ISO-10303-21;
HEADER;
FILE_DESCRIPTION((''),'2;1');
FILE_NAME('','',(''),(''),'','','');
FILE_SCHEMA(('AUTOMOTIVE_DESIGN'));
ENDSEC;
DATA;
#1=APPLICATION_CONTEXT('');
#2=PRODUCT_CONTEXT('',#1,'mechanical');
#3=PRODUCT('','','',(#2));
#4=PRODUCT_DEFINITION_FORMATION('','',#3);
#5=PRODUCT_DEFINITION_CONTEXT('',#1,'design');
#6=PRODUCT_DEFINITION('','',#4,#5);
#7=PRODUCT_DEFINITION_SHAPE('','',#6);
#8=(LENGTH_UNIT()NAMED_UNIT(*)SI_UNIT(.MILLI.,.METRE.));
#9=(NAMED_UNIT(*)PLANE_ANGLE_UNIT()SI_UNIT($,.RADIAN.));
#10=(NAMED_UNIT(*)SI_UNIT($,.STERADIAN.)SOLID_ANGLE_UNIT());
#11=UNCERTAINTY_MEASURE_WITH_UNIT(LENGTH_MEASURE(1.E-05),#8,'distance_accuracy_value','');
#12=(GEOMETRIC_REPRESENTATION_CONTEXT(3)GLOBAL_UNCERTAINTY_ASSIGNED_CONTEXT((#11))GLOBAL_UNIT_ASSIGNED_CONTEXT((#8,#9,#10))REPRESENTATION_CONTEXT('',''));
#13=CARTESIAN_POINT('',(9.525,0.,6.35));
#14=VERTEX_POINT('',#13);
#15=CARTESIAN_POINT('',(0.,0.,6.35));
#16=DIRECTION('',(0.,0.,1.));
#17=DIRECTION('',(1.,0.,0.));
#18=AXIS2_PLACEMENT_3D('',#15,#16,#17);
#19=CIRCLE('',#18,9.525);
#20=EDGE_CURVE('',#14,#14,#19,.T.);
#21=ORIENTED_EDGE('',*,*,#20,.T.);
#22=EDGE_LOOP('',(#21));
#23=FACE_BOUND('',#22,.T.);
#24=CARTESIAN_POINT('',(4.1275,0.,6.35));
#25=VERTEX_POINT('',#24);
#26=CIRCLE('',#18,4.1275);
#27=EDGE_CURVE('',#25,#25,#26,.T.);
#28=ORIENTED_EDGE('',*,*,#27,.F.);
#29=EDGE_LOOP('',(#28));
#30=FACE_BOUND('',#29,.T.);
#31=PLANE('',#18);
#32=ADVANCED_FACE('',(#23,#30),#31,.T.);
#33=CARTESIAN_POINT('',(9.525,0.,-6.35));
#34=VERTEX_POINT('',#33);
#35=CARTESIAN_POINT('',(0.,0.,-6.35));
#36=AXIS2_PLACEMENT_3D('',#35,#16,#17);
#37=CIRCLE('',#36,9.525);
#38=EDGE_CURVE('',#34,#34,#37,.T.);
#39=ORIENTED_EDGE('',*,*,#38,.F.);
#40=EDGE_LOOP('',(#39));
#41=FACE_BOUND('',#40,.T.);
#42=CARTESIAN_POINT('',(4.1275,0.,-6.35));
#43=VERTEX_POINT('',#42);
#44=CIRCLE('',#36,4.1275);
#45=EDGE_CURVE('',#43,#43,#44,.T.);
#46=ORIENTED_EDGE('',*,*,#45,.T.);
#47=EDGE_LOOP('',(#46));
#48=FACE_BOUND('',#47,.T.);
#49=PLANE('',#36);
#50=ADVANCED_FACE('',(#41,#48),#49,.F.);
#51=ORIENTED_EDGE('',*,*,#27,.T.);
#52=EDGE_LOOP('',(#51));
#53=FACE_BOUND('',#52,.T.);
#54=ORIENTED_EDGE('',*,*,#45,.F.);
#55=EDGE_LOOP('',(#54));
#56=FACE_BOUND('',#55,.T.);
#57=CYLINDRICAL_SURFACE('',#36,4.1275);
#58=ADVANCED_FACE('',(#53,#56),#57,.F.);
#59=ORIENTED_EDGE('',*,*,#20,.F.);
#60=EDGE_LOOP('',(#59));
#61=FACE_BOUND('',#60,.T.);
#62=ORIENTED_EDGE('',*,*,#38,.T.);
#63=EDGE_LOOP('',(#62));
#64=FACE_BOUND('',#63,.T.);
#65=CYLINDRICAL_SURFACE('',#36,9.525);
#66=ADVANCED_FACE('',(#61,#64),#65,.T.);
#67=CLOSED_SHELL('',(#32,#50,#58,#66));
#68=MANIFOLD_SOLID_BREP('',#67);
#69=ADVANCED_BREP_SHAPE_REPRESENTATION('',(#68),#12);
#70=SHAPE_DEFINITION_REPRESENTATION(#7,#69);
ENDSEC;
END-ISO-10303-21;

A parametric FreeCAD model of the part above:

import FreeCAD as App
import Part
import Sketcher
Q = App.Units.Quantity

doc = App.newDocument("Part")
body = doc.addObject("PartDesign::Body", "Body")

# Sketch on XY plane
sketch1 = body.newObject("Sketcher::SketchObject", "Sketch")
sketch1.AttachmentSupport = (doc.getObject("XY_Plane"), [""])
sketch1.MapMode = "FlatFace"
sketch1.addGeometry(Part.Circle(App.Vector(0, 0, 0), App.Vector(0, 0, 1), 9.5), False)
sketch1.addGeometry(Part.Circle(App.Vector(0, 0, 0), App.Vector(0, 0, 1), 4.1), False)
sketch1.addConstraint(Sketcher.Constraint("Coincident", 0, 3, -1, 1))
sketch1.addConstraint(Sketcher.Constraint("Coincident", 1, 3, -1, 1))
sketch1.addConstraint(Sketcher.Constraint("Diameter", 0, Q("0.75 in")))
sketch1.addConstraint(Sketcher.Constraint("Diameter", 1, Q("0.325 in")))
pad1 = body.newObject("PartDesign::Pad", "Pad")
pad1.Profile = sketch1
pad1.Type = "TwoLengths"
pad1.Length = Q("0.25 in")
pad1.Length2 = Q("0.25 in")

doc.recompute()
